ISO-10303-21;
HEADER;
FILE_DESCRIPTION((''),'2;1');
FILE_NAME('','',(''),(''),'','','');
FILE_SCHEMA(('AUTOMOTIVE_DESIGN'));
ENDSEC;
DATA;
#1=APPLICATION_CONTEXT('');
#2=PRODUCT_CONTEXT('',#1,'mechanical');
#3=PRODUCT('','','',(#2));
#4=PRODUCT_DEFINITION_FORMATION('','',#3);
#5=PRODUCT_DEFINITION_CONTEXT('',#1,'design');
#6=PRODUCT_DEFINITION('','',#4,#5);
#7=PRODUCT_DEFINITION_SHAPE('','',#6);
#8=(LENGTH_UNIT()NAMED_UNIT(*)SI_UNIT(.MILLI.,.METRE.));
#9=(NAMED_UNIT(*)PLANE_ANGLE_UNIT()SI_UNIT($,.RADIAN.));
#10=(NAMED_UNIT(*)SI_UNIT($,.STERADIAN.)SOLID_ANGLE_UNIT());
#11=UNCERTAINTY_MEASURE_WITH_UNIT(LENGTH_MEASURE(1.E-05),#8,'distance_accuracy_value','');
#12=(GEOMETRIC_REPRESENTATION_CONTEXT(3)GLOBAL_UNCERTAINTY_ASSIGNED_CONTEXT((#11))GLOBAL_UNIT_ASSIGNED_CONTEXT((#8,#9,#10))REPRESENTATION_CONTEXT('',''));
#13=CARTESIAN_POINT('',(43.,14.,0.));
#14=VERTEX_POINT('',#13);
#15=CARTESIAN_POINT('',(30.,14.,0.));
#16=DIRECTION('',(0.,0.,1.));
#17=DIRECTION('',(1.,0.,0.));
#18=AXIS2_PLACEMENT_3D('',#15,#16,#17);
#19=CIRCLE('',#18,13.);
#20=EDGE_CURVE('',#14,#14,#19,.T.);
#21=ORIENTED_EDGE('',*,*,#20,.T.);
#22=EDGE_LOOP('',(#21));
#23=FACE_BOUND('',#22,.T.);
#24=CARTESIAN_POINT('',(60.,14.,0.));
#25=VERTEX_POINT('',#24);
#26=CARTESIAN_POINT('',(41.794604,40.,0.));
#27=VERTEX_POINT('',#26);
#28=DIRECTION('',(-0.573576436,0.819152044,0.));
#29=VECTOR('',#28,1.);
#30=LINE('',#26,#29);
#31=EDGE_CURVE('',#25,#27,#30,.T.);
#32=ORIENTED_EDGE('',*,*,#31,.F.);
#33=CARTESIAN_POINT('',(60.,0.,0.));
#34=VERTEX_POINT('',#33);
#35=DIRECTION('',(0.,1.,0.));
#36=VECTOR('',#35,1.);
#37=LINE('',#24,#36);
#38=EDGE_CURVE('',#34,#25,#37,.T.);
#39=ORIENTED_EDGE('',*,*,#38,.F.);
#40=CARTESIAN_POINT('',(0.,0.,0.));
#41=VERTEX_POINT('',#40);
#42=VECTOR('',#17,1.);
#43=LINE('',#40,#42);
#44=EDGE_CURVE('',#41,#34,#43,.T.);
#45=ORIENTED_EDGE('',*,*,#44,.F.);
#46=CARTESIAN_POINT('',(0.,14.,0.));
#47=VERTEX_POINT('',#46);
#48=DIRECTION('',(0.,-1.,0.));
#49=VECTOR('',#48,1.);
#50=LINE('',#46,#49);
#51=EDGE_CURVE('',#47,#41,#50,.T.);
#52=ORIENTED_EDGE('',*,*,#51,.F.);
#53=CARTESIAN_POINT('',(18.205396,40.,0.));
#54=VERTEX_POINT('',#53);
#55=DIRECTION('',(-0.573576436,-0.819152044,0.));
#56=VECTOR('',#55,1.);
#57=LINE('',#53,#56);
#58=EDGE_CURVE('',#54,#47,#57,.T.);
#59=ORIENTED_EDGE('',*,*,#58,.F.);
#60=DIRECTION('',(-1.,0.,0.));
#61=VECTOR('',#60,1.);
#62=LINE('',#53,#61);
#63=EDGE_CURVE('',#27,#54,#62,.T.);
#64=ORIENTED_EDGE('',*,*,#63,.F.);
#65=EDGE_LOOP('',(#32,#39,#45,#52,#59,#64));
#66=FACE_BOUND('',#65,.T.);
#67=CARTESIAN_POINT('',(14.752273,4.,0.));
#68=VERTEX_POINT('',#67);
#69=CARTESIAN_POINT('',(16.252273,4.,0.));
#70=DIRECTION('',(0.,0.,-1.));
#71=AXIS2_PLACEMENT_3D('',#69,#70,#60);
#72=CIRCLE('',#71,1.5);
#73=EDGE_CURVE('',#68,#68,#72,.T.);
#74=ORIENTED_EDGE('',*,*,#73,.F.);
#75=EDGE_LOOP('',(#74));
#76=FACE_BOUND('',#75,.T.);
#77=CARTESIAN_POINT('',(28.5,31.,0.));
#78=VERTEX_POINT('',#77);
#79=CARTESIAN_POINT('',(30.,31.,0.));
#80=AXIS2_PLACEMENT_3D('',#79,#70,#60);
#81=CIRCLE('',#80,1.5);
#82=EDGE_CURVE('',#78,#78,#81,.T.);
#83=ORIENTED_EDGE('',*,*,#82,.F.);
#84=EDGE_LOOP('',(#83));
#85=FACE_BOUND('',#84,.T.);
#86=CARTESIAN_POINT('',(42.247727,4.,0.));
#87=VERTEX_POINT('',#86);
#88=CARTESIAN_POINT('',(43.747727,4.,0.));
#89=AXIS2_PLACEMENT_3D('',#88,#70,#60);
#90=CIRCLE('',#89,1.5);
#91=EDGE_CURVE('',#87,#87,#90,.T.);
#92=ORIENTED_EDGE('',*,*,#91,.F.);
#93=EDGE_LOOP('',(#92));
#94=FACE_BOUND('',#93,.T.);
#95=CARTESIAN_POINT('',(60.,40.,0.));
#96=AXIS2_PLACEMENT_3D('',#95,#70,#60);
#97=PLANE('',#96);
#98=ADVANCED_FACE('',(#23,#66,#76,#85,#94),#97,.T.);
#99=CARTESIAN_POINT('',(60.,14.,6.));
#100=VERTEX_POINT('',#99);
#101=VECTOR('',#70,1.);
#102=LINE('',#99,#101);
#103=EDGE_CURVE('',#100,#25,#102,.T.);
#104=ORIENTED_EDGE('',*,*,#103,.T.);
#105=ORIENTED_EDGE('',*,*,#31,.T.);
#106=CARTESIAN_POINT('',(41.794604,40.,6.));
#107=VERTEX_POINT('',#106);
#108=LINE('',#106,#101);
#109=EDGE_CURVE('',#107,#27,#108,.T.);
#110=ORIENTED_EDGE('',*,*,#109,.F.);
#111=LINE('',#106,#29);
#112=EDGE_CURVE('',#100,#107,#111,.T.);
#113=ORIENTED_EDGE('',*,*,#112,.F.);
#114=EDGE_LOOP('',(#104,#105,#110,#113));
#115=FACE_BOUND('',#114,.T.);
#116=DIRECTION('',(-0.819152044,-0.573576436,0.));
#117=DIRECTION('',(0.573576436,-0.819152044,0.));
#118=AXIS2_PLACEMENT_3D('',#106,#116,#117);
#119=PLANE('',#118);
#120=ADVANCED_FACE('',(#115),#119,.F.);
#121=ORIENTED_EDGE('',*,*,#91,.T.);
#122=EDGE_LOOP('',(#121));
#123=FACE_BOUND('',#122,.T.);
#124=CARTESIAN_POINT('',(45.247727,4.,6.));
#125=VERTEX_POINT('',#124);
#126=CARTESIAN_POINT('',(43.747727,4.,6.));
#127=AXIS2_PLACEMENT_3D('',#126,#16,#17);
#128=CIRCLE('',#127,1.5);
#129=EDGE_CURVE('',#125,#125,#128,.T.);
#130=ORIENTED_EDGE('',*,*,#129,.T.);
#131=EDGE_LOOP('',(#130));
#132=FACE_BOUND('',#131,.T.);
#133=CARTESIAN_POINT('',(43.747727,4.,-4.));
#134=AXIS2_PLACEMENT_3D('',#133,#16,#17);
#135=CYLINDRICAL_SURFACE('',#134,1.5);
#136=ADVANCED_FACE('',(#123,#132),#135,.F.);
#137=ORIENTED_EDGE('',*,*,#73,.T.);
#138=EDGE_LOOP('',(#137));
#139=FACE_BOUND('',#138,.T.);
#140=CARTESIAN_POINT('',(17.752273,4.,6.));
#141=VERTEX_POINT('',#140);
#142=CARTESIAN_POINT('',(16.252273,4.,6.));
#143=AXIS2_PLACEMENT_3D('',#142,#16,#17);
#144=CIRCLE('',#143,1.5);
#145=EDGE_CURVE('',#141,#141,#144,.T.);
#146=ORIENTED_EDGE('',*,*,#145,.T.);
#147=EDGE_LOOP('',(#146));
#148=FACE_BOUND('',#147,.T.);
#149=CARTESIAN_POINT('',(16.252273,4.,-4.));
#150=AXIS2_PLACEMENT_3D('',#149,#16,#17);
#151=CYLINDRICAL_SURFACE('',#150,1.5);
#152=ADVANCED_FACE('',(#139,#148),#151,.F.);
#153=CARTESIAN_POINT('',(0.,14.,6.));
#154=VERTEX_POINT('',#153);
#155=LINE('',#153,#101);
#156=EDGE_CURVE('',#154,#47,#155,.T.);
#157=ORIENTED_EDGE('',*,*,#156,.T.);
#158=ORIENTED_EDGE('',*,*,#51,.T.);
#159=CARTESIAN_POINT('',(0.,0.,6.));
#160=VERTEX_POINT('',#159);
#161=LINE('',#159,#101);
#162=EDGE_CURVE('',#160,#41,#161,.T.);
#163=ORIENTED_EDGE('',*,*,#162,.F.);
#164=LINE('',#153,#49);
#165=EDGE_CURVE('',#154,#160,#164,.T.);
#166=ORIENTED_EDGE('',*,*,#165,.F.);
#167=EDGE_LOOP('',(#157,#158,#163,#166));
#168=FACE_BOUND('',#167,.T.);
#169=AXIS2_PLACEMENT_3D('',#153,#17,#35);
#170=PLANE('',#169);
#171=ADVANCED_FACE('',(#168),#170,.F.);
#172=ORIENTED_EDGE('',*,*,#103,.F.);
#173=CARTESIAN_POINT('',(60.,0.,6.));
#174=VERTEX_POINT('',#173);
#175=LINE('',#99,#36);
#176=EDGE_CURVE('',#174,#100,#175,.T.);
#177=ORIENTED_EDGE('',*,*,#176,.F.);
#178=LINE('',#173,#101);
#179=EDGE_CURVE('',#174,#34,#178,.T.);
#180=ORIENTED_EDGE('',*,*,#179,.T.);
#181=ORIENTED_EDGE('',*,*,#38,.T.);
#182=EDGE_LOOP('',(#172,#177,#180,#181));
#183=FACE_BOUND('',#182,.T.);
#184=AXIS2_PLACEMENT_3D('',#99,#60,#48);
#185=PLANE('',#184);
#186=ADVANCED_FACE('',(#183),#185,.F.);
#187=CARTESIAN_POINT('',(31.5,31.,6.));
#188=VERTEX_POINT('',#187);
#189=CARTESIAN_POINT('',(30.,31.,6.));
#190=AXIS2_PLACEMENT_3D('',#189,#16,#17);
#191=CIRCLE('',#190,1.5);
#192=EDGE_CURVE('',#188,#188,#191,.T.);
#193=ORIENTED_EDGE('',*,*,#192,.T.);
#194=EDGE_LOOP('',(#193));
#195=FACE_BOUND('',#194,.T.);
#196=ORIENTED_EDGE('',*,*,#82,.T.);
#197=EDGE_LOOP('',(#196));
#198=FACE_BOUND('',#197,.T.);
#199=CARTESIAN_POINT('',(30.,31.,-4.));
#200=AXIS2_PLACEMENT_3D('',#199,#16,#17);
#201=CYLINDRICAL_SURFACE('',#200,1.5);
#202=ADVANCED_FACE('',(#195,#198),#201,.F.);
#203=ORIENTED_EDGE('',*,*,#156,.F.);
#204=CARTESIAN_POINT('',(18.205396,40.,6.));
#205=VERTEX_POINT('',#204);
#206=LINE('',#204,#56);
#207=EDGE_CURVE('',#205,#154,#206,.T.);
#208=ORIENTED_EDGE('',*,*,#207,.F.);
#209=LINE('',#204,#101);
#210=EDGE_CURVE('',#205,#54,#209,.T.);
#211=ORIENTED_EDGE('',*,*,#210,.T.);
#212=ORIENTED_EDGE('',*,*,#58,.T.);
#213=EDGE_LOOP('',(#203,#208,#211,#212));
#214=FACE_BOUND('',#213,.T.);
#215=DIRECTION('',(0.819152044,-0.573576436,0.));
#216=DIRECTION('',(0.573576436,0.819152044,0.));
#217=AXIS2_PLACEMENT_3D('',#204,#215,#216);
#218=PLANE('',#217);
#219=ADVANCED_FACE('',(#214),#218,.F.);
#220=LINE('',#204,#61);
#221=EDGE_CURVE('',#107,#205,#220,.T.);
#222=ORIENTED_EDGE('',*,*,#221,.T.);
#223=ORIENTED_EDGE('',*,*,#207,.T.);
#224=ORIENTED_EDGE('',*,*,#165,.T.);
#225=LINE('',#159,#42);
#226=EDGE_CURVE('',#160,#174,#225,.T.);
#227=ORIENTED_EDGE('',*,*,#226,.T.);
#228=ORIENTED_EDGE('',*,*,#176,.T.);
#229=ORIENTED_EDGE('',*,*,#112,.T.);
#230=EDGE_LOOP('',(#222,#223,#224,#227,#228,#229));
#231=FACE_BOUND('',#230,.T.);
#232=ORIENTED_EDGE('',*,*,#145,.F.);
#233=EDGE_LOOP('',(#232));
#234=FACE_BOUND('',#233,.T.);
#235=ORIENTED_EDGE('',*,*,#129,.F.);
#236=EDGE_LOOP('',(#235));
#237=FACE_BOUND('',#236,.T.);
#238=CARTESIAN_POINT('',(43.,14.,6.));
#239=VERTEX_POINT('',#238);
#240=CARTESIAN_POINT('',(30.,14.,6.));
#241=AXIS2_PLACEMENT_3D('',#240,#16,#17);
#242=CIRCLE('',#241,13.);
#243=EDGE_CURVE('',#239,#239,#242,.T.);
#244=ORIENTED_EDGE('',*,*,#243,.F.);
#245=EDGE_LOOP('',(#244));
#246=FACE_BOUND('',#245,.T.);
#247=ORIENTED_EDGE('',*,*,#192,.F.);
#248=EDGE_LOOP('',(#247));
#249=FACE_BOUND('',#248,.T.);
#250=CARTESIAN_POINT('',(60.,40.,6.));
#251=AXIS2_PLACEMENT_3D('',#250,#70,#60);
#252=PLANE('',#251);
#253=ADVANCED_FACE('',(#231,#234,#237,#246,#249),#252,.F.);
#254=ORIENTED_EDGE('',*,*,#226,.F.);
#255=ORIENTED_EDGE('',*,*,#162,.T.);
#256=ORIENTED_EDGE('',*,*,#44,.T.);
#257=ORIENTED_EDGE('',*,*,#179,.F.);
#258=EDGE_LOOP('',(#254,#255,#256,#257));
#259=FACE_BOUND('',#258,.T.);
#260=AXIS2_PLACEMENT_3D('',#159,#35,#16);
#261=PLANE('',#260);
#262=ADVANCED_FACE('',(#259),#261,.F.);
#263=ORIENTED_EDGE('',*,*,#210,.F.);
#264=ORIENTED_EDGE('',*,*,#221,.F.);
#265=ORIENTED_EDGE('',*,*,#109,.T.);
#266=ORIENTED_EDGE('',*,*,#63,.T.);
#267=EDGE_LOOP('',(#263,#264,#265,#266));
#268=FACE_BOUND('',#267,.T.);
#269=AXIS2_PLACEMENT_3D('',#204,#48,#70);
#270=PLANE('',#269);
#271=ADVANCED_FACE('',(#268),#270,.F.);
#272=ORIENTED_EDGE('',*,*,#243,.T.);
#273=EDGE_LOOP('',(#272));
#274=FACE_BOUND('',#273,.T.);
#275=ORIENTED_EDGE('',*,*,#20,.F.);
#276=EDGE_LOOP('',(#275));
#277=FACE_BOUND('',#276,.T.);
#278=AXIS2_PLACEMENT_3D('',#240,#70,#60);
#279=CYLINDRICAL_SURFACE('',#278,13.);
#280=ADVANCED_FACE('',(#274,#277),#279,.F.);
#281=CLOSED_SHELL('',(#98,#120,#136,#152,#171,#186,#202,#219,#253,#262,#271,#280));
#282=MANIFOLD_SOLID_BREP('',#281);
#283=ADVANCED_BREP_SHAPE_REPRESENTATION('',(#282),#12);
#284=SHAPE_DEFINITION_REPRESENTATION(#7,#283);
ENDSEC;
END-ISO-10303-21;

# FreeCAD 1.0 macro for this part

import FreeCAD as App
import Part
import Sketcher
Q = App.Units.Quantity

doc = App.newDocument("Part")
body = doc.addObject("PartDesign::Body", "Body")

sketch1 = doc.addObject("Sketcher::SketchObject", "Sketch")
body.addObject(sketch1)
sketch1.AttachmentSupport = (doc.XY_Plane, [""])
sketch1.MapMode = "FlatFace"
sketch1.addGeometry([
    Part.LineSegment(App.Vector(60, 14, 0), App.Vector(42, 40, 0)),
    Part.LineSegment(App.Vector(42, 40, 0), App.Vector(18, 40, 0)),
    Part.LineSegment(App.Vector(18, 40, 0), App.Vector(0, 14, 0)),
    Part.LineSegment(App.Vector(0, 14, 0), App.Vector(0, 0, 0)),
    Part.LineSegment(App.Vector(0, 0, 0), App.Vector(60, 0, 0)),
    Part.LineSegment(App.Vector(60, 0, 0), App.Vector(60, 14, 0)),
    Part.Circle(App.Vector(30, 14, 0), App.Vector(0, 0, 1), 13),
], False)
sketch1.addConstraint([
    Sketcher.Constraint("Coincident", 0, 2, 1, 1),
    Sketcher.Constraint("Coincident", 1, 2, 2, 1),
    Sketcher.Constraint("Coincident", 2, 2, 3, 1),
    Sketcher.Constraint("Coincident", 3, 2, 4, 1),
    Sketcher.Constraint("Coincident", 4, 2, 5, 1),
    Sketcher.Constraint("Coincident", 5, 2, 0, 1),
    Sketcher.Constraint("Horizontal", 1),
    Sketcher.Constraint("Vertical", 3),
    Sketcher.Constraint("Horizontal", 4),
    Sketcher.Constraint("Vertical", 5),
    Sketcher.Constraint("Coincident", 3, 2, -1, 1),
    Sketcher.Constraint("Horizontal", 6, 3, 2, 2),
    Sketcher.Constraint("Horizontal", 2, 2, 5, 2),
    Sketcher.Constraint("Equal", 0, 2),
    Sketcher.Constraint("Diameter", 6, 26.0),
    Sketcher.Constraint("DistanceX", 4, 1, 4, 2, 60.0),
    Sketcher.Constraint("DistanceY", 3, 2, 3, 1, 14.0),
    Sketcher.Constraint("Angle", 0, Q("125 deg")),
    Sketcher.Constraint("DistanceX", -1, 1, 6, 3, 30.0),
    Sketcher.Constraint("DistanceY", -1, 1, 0, 2, 40.0),
])
pad1 = doc.addObject("PartDesign::Pad", "Pad")
body.addObject(pad1)
pad1.Profile = sketch1
pad1.Length = 6

sketch2 = doc.addObject("Sketcher::SketchObject", "Sketch001")
body.addObject(sketch2)
sketch2.AttachmentSupport = (doc.XY_Plane, [""])
sketch2.MapMode = "FlatFace"
sketch2.AttachmentOffset = App.Placement(App.Vector(0, 0, 6), App.Rotation())
sketch2.addGeometry([
    Part.Circle(App.Vector(16.3, 4, 0), App.Vector(0, 0, 1), 1.5),
    Part.Circle(App.Vector(43.7, 4, 0), App.Vector(0, 0, 1), 1.5),
    Part.Circle(App.Vector(30, 31, 0), App.Vector(0, 0, 1), 1.5),
], False)
sketch2.addConstraint([
    Sketcher.Constraint("Equal", 0, 1),
    Sketcher.Constraint("Equal", 1, 2),
    Sketcher.Constraint("Horizontal", 0, 3, 1, 3),
    Sketcher.Constraint("Diameter", 0, 3.0),
    Sketcher.Constraint("DistanceY", -1, 1, 0, 3, 4.0),
    Sketcher.Constraint("DistanceX", -1, 1, 2, 3, 30.0),
    Sketcher.Constraint("DistanceY", -1, 1, 2, 3, 31.0),
    Sketcher.Constraint("DistanceX", -1, 1, 0, 3, 16.252273),
    Sketcher.Constraint("DistanceX", -1, 1, 1, 3, 43.747727),
])
pocket1 = doc.addObject("PartDesign::Pocket", "Pocket")
body.addObject(pocket1)
pocket1.Profile = sketch2
pocket1.Length = 10

doc.recompute()
